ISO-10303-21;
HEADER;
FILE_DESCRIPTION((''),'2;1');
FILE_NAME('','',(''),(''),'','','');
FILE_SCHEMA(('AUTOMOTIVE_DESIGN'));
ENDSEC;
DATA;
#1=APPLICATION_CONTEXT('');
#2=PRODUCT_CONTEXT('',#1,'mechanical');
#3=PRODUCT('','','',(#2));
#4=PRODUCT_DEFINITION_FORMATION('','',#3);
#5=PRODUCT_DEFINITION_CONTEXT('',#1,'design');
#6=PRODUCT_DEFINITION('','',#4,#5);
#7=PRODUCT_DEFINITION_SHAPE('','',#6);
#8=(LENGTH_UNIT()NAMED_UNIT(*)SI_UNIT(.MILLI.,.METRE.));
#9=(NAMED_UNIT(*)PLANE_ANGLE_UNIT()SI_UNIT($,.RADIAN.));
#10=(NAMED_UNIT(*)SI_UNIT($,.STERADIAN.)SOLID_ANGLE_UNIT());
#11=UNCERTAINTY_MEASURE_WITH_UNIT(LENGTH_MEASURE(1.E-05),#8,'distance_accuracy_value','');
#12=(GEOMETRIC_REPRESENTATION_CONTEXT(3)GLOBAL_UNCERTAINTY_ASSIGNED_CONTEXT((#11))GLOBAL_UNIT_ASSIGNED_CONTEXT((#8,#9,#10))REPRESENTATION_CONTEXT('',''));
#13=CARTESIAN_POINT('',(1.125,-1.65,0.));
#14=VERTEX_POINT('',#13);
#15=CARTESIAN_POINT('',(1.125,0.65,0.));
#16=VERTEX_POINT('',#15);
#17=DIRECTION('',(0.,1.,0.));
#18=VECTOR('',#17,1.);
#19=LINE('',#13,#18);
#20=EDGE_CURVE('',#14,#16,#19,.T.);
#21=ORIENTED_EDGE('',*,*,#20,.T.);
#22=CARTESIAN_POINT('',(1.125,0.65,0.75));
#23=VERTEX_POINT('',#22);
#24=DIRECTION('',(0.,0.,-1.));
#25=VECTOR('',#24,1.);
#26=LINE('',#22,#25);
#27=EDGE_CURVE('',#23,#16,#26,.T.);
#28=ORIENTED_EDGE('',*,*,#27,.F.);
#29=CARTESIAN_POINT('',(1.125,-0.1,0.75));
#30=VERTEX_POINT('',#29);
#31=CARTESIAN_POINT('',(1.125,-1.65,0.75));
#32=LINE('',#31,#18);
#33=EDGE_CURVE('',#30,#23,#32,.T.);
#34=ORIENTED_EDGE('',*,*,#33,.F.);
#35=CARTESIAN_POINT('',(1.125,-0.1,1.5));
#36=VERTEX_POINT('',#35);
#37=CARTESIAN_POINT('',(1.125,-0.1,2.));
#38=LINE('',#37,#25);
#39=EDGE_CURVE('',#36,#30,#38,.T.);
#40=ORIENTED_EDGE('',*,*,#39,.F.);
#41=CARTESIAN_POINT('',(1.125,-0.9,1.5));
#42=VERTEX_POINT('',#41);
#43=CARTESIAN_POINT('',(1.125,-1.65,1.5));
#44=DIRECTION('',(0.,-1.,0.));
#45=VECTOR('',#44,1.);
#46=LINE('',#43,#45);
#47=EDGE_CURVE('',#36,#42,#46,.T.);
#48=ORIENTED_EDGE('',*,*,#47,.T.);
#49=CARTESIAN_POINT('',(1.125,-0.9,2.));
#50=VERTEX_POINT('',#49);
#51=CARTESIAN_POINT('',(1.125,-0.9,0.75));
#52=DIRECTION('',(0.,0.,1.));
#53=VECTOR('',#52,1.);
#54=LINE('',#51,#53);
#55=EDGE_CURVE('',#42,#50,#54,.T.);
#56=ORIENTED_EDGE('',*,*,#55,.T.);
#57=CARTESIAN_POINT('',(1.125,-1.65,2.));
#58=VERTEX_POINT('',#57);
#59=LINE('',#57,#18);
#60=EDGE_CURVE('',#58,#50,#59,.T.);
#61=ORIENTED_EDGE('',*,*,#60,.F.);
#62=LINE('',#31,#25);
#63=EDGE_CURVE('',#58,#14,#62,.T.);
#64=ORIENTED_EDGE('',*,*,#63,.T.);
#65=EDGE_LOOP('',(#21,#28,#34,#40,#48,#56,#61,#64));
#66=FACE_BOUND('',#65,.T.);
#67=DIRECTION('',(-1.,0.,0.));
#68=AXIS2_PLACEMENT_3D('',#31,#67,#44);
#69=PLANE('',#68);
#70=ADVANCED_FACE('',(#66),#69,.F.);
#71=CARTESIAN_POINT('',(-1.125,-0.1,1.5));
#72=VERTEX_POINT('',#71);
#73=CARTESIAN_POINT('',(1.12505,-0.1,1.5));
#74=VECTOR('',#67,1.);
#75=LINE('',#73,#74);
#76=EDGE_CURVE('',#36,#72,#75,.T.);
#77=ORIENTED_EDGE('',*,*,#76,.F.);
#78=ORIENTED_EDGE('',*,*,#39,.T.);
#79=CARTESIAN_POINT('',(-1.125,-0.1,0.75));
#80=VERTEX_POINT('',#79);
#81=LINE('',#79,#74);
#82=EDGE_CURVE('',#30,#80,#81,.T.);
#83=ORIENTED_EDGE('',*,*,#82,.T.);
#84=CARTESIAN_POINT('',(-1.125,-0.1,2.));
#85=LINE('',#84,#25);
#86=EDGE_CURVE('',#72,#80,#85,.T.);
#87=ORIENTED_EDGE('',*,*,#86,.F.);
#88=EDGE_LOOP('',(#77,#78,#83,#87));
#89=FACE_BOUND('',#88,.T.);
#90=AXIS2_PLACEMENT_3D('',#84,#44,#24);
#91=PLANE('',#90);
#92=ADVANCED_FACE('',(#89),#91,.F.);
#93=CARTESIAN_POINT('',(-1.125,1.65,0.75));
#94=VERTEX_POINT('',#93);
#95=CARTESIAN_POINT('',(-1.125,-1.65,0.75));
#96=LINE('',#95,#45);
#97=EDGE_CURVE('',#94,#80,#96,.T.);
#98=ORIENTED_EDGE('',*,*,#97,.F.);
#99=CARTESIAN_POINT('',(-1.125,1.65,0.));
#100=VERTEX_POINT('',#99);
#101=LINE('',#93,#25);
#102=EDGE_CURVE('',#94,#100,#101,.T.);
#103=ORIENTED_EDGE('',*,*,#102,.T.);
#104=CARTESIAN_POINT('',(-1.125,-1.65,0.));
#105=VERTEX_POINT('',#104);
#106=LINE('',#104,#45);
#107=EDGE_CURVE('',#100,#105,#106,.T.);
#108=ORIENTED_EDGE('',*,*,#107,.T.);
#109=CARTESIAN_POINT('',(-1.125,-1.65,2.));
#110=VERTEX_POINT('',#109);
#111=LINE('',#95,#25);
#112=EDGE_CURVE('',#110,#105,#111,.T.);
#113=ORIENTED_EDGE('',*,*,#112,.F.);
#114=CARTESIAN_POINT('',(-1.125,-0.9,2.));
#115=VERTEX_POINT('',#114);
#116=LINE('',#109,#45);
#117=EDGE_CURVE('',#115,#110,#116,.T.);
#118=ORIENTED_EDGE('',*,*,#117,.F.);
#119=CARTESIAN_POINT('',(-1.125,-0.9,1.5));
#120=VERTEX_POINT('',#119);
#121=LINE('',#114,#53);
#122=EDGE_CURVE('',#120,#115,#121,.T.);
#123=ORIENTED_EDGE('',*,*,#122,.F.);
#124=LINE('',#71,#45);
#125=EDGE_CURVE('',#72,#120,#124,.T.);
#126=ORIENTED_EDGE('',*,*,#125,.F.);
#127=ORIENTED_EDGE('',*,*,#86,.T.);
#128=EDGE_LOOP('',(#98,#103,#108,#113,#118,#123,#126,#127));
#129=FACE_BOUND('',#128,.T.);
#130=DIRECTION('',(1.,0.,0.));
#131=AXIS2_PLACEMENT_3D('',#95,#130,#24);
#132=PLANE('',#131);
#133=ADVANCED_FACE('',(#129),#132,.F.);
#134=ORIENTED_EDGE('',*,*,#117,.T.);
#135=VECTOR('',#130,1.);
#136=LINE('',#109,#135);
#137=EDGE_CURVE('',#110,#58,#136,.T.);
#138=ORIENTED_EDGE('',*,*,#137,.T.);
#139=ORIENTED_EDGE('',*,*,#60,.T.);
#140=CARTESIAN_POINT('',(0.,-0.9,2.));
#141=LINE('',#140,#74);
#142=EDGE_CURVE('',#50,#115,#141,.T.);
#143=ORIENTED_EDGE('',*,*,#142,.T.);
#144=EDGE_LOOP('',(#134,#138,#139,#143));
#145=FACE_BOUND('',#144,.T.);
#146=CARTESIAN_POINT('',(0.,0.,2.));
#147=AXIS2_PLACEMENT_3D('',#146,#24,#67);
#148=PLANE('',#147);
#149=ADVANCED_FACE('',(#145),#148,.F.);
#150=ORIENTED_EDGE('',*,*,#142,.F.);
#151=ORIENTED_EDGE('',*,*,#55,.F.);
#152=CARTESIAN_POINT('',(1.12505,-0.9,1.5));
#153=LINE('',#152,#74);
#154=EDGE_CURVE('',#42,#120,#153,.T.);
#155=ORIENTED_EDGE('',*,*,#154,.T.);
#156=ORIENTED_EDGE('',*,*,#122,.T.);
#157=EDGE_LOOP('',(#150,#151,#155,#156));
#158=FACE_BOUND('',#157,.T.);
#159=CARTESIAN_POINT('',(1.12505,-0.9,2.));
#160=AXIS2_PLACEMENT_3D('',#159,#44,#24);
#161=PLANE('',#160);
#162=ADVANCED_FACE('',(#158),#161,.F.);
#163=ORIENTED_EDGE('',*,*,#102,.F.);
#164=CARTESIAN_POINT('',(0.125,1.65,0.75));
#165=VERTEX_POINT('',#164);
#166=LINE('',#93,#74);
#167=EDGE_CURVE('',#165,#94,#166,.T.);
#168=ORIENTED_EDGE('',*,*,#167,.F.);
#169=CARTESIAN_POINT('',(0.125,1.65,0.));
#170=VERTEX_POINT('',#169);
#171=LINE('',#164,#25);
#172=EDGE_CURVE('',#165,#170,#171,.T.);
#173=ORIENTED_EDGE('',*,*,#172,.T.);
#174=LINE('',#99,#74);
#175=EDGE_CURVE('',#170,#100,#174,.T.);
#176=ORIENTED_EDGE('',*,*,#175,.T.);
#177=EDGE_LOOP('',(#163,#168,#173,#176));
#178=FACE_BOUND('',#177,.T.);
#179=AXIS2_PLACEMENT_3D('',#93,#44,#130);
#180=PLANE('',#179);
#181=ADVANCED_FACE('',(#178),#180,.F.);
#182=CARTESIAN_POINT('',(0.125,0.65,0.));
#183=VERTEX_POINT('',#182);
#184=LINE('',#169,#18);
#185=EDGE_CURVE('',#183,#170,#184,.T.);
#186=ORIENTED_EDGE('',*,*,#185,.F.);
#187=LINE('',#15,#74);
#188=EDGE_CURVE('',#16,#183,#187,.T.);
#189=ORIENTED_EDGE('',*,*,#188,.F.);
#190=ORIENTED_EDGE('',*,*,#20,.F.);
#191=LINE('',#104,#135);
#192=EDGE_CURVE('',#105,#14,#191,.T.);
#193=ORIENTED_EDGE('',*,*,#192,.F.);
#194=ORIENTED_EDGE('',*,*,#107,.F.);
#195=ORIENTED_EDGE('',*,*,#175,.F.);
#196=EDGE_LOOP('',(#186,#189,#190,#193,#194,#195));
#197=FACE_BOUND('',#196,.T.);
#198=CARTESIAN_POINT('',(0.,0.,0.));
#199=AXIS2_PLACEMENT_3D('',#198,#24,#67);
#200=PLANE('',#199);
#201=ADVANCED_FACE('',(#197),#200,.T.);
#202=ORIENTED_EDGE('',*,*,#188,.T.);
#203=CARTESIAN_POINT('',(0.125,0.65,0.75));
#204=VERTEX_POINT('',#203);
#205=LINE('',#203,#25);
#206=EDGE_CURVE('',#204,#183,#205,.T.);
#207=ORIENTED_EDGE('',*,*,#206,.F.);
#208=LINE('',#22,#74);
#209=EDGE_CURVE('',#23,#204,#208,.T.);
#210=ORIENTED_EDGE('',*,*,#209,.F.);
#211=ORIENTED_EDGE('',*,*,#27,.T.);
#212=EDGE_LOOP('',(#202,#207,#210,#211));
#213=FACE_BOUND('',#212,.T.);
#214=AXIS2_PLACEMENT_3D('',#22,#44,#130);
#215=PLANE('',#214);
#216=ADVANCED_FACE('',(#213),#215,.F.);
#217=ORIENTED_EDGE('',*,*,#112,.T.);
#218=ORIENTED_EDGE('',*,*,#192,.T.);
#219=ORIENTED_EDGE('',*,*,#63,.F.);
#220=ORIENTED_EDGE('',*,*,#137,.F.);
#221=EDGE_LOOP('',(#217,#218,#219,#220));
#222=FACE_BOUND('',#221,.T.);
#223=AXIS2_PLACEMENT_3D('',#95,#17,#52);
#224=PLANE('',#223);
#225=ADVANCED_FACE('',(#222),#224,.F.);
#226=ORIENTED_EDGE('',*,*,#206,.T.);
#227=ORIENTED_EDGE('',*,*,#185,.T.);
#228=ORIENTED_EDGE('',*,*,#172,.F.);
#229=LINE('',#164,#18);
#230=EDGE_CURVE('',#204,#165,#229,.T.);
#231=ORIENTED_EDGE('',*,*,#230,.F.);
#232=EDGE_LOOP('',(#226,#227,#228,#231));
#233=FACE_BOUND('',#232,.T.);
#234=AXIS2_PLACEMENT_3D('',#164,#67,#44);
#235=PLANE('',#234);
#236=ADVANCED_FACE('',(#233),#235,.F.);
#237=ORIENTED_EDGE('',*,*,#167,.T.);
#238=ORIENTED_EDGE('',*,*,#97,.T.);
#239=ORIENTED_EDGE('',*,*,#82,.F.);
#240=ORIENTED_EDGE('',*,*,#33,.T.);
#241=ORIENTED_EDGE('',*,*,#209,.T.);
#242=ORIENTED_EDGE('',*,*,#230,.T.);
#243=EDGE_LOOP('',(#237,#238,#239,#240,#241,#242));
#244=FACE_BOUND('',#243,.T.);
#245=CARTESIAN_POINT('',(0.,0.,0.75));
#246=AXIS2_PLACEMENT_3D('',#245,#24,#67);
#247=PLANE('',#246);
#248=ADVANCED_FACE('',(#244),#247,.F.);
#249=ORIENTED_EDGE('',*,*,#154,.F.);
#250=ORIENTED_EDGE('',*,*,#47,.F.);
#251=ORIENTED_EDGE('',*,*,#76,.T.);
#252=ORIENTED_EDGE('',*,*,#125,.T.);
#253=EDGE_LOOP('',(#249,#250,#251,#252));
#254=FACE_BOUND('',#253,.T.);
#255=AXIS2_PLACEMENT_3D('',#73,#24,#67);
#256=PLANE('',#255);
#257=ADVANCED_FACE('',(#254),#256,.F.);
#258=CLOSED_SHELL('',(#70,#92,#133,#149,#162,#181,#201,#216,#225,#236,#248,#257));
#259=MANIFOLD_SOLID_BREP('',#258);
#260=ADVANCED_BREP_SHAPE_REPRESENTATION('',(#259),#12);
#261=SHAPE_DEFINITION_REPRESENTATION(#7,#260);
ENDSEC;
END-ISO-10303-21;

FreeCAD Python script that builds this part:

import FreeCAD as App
import Part
import Sketcher

doc = App.newDocument("Part")
params = doc.addObject("Spreadsheet::Sheet", "Params")
for row, (alias, value) in enumerate([
    ("sketch1_width", "1 mm"),
    ("sketch1_height", "2.3 mm"),
    ("sketch1_width2", "2.25 mm"),
    ("pad1_length", "0.75 mm"),
    ("sketch2_width", "2.25 mm"),
    ("sketch2_height", "1.55 mm"),
    ("pad2_length", "1.25 mm"),
    ("sketch3_width", "0.8 mm"),
    ("sketch3_height", "0.5 mm"),
], start=1):
    params.set(f"A{row}", alias)
    params.set(f"B{row}", "=" + value)
    params.setAlias(f"B{row}", alias)

body = doc.addObject("PartDesign::Body", "Body")

# Sketch on XY plane
sketch1 = body.newObject("Sketcher::SketchObject", "Sketch")
sketch1.AttachmentSupport = (doc.getObject("XY_Plane"), [""])
sketch1.MapMode = "FlatFace"
sketch1.addGeometry([
    Part.LineSegment(App.Vector(-1.125, -1.65, 0), App.Vector(1.125, -1.65, 0)),  # 0
    Part.LineSegment(App.Vector(1.125, -1.65, 0), App.Vector(1.125, 0.65, 0)),  # 1
    Part.LineSegment(App.Vector(1.125, 0.65, 0), App.Vector(0.125, 0.65, 0)),  # 2
    Part.LineSegment(App.Vector(0.125, 0.65, 0), App.Vector(0.125, 1.65, 0)),  # 3
    Part.LineSegment(App.Vector(0.125, 1.65, 0), App.Vector(-1.125, 1.65, 0)),  # 4
    Part.LineSegment(App.Vector(-1.125, 1.65, 0), App.Vector(-1.125, -1.65, 0)),  # 5
], False)
sketch1.addConstraint([
    Sketcher.Constraint("Coincident", 0, 2, 1, 1),
    Sketcher.Constraint("Coincident", 1, 2, 2, 1),
    Sketcher.Constraint("Coincident", 2, 2, 3, 1),
    Sketcher.Constraint("Coincident", 3, 2, 4, 1),
    Sketcher.Constraint("Coincident", 4, 2, 5, 1),
    Sketcher.Constraint("Coincident", 5, 2, 0, 1),
    Sketcher.Constraint("Horizontal", 0),
    Sketcher.Constraint("Vertical", 1),
    Sketcher.Constraint("Horizontal", 2),
    Sketcher.Constraint("Vertical", 3),
    Sketcher.Constraint("Horizontal", 4),
    Sketcher.Constraint("Vertical", 5),
    Sketcher.Constraint("Symmetric", 0, 2, 4, 2, -1, 1),
    Sketcher.Constraint("Equal", 2, 3),
    Sketcher.Constraint("DistanceX", 2, 2, 2, 1, 1.0),
    Sketcher.Constraint("DistanceY", 1, 1, 1, 2, 2.3),
    Sketcher.Constraint("DistanceX", 0, 1, 0, 2, 2.25),
])
sketch1.setExpression("Constraints[14]", "Params.sketch1_width")
sketch1.setExpression("Constraints[15]", "Params.sketch1_height")
sketch1.setExpression("Constraints[16]", "Params.sketch1_width2")
pad1 = body.newObject("PartDesign::Pad", "Pad")
pad1.Profile = sketch1
pad1.setExpression("Length", "Params.pad1_length")

# Sketch on XY plane
sketch2 = body.newObject("Sketcher::SketchObject", "Sketch001")
sketch2.AttachmentSupport = (doc.getObject("XY_Plane"), [""])
sketch2.MapMode = "FlatFace"
sketch2.AttachmentOffset = App.Placement(App.Vector(0, 0, 0.75), App.Rotation())
sketch2.addGeometry([
    Part.LineSegment(App.Vector(-1.125, -0.1, 0), App.Vector(-1.125, -1.65, 0)),
    Part.LineSegment(App.Vector(-1.125, -1.65, 0), App.Vector(1.125, -1.65, 0)),
    Part.LineSegment(App.Vector(1.125, -1.65, 0), App.Vector(1.125, -0.1, 0)),
    Part.LineSegment(App.Vector(1.125, -0.1, 0), App.Vector(-1.125, -0.1, 0)),
], False)
sketch2.addConstraint([
    Sketcher.Constraint("Coincident", 0, 2, 1, 1),
    Sketcher.Constraint("Coincident", 1, 2, 2, 1),
    Sketcher.Constraint("Coincident", 2, 2, 3, 1),
    Sketcher.Constraint("Coincident", 3, 2, 0, 1),
    Sketcher.Constraint("Vertical", 0),
    Sketcher.Constraint("Horizontal", 1),
    Sketcher.Constraint("Vertical", 2),
    Sketcher.Constraint("Horizontal", 3),
    Sketcher.Constraint("DistanceX", 1, 1, 1, 2, 2.25),
    Sketcher.Constraint("DistanceY", 0, 2, 0, 1, 1.55),
    Sketcher.Constraint("DistanceY", 2, 2, -1, 1, 0.1),
    Sketcher.Constraint("DistanceX", 0, 2, -1, 1, 1.125),
])
sketch2.setExpression("Constraints[8]", "Params.sketch2_width")
sketch2.setExpression("Constraints[9]", "Params.sketch2_height")
pad2 = body.newObject("PartDesign::Pad", "Pad001")
pad2.Profile = sketch2
pad2.setExpression("Length", "Params.pad2_length")

# Sketch on YZ plane
sketch3 = body.newObject("Sketcher::SketchObject", "Sketch002")
sketch3.AttachmentSupport = (doc.getObject("YZ_Plane"), [""])
sketch3.MapMode = "FlatFace"
sketch3.AttachmentOffset = App.Placement(App.Vector(0, 0, -1.125), App.Rotation())
sketch3.addGeometry([
    Part.LineSegment(App.Vector(-0.1, 1.5, 0), App.Vector(-0.9, 1.5, 0)),
    Part.LineSegment(App.Vector(-0.9, 1.5, 0), App.Vector(-0.9, 2, 0)),
    Part.LineSegment(App.Vector(-0.9, 2, 0), App.Vector(-0.1, 2, 0)),
    Part.LineSegment(App.Vector(-0.1, 2, 0), App.Vector(-0.1, 1.5, 0)),
], False)
sketch3.addConstraint([
    Sketcher.Constraint("Coincident", 0, 2, 1, 1),
    Sketcher.Constraint("Coincident", 1, 2, 2, 1),
    Sketcher.Constraint("Coincident", 2, 2, 3, 1),
    Sketcher.Constraint("Coincident", 3, 2, 0, 1),
    Sketcher.Constraint("Horizontal", 0),
    Sketcher.Constraint("Vertical", 1),
    Sketcher.Constraint("Horizontal", 2),
    Sketcher.Constraint("Vertical", 3),
    Sketcher.Constraint("DistanceX", 0, 2, 0, 1, 0.8),
    Sketcher.Constraint("DistanceY", 1, 1, 1, 2, 0.5),
    Sketcher.Constraint("DistanceY", -1, 1, 1, 2, 2.0),
    Sketcher.Constraint("DistanceX", 0, 2, -1, 1, 0.9),
])
sketch3.setExpression("Constraints[8]", "Params.sketch3_width")
sketch3.setExpression("Constraints[9]", "Params.sketch3_height")
pocket1 = body.newObject("PartDesign::Pocket", "Pocket")
pocket1.Profile = sketch3
pocket1.Type = "ThroughAll"
pocket1.Reversed = True

doc.recompute()
